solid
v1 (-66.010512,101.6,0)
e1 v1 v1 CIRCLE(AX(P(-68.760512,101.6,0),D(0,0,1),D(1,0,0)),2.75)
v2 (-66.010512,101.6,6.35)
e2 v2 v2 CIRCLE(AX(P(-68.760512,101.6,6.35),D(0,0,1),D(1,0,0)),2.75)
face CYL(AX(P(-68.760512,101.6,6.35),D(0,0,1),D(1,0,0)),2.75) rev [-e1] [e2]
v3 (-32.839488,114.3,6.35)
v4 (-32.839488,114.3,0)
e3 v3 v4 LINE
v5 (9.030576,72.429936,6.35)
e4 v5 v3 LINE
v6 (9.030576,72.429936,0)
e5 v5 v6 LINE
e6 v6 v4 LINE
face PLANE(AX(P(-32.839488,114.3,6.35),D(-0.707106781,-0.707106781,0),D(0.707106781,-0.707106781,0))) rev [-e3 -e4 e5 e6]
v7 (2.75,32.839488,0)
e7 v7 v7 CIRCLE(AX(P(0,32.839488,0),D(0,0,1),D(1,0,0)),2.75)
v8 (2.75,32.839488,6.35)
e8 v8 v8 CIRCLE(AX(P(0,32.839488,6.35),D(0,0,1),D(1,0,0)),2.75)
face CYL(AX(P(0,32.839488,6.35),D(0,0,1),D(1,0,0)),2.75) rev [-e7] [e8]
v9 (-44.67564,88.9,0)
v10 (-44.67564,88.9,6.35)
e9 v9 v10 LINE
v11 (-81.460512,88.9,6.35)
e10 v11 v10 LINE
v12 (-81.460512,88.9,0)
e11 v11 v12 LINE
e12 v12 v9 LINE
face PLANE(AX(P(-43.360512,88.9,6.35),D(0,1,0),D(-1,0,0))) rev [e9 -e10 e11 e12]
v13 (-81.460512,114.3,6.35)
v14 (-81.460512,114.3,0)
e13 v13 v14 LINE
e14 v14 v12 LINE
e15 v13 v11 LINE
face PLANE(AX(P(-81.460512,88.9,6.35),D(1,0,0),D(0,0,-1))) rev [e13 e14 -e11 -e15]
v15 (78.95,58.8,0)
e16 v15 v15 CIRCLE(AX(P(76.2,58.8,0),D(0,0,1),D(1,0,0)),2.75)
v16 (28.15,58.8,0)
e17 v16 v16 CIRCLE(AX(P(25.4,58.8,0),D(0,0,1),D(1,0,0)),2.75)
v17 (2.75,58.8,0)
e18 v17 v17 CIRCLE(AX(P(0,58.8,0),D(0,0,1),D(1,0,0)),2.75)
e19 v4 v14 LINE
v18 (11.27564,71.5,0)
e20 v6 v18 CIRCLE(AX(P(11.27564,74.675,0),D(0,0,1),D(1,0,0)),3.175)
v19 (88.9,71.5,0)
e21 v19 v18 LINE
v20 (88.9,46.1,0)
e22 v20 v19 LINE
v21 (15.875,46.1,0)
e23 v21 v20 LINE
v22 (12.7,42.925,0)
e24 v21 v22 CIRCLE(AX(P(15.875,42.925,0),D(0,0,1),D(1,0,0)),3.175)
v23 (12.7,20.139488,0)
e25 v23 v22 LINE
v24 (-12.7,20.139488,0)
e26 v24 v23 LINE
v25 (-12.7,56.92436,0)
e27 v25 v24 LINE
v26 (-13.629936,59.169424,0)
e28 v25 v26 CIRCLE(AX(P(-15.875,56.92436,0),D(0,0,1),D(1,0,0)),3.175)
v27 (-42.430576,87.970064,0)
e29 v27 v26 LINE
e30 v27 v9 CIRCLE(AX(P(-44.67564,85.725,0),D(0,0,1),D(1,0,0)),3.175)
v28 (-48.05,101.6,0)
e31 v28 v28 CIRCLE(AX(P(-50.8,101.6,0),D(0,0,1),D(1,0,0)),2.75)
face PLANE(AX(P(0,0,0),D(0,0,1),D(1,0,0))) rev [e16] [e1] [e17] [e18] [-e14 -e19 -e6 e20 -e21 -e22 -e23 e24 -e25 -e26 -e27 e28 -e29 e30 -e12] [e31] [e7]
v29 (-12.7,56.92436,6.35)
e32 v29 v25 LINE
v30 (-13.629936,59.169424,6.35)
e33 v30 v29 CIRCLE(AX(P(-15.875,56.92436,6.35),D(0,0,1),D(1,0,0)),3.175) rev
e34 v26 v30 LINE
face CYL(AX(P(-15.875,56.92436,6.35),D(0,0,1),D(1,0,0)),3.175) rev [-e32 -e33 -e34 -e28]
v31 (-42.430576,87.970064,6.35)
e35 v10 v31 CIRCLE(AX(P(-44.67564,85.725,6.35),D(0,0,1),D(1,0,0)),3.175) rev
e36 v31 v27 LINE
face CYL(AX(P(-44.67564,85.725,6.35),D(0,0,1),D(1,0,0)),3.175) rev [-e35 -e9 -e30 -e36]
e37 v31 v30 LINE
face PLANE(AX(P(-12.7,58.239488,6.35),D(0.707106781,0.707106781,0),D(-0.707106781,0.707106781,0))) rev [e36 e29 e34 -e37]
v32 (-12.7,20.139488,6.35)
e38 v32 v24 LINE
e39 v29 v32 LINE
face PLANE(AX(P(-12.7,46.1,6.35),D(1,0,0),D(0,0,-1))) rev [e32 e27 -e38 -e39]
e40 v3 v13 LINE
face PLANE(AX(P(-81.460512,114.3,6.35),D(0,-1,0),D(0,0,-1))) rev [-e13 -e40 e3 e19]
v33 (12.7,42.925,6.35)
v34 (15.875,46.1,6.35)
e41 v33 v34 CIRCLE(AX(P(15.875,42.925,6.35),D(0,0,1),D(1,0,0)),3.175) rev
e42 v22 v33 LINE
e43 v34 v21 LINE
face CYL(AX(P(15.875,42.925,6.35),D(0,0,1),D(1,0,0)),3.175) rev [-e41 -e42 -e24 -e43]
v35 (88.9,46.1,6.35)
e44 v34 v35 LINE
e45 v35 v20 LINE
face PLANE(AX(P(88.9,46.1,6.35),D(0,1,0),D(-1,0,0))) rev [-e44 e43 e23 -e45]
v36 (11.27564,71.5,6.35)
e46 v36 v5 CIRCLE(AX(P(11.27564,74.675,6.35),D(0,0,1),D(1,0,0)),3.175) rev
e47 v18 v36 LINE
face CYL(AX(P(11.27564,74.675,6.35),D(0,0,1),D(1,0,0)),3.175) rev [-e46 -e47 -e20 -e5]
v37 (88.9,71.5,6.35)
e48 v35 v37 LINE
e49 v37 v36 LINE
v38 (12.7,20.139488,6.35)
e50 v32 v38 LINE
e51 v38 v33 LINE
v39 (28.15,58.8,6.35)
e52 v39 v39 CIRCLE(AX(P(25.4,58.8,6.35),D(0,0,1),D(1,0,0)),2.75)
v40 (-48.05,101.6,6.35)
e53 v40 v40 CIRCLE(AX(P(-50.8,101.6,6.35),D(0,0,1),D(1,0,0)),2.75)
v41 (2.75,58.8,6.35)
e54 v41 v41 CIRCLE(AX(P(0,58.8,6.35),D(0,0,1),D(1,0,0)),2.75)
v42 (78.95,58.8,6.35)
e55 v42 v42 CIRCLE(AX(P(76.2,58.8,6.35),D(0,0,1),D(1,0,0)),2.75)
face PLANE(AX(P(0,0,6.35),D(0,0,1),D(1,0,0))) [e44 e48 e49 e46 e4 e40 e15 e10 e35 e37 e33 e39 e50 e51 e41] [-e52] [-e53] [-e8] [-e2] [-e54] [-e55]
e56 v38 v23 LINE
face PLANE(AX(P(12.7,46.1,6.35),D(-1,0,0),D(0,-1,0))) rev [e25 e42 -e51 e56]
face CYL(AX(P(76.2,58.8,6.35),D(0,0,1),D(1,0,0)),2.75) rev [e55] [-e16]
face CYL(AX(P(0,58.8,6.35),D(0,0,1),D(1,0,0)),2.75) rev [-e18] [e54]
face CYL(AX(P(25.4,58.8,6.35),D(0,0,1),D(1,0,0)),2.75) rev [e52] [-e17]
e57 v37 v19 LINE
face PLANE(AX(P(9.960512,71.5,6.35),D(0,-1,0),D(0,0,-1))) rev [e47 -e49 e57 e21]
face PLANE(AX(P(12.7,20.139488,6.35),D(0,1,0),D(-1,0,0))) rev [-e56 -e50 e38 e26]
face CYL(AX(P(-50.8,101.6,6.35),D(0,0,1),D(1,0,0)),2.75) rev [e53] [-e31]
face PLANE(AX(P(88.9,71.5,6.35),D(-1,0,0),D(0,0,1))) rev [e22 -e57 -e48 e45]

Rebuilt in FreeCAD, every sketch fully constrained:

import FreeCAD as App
import Part
import Sketcher

V = App.Vector
Q = App.Units.Quantity


def edges_at(feature, points):
    """Names of the edges that pass closest to the given points."""
    edges = feature.Shape.Edges
    near = lambda p: min(range(len(edges)), key=lambda i: edges[i].distToShape(Part.Vertex(*p))[0])
    return sorted({f"Edge{near(p) + 1}" for p in points})

doc = App.newDocument("Part")
body = doc.addObject("PartDesign::Body", "Body")

sketch1 = body.newObject("Sketcher::SketchObject", "Sketch")
sketch1.AttachmentSupport = (doc.getObject("XY_Plane"), [""])
sketch1.MapMode = "FlatFace"
sketch1.addGeometry([
    Part.LineSegment(V(-13, 58, 0), V(-13, 20, 0)),
    Part.LineSegment(V(-13, 20, 0), V(13, 20, 0)),
    Part.LineSegment(V(13, 20, 0), V(13, 46, 0)),
    Part.LineSegment(V(13, 46, 0), V(89, 46, 0)),
    Part.LineSegment(V(89, 46, 0), V(89, 72, 0)),
    Part.LineSegment(V(89, 72, 0), V(10, 72, 0)),
    Part.LineSegment(V(10, 72, 0), V(-33, 114, 0)),
    Part.LineSegment(V(-33, 114, 0), V(-81, 114, 0)),
    Part.LineSegment(V(-81, 114, 0), V(-81, 89, 0)),
    Part.LineSegment(V(-81, 89, 0), V(-43, 89, 0)),
    Part.LineSegment(V(-43, 89, 0), V(-13, 58, 0)),
], False)
sketch1.addConstraint([
    Sketcher.Constraint("Coincident", 0, 2, 1, 1),
    Sketcher.Constraint("Coincident", 1, 2, 2, 1),
    Sketcher.Constraint("Coincident", 2, 2, 3, 1),
    Sketcher.Constraint("Coincident", 3, 2, 4, 1),
    Sketcher.Constraint("Coincident", 4, 2, 5, 1),
    Sketcher.Constraint("Coincident", 5, 2, 6, 1),
    Sketcher.Constraint("Coincident", 6, 2, 7, 1),
    Sketcher.Constraint("Coincident", 7, 2, 8, 1),
    Sketcher.Constraint("Coincident", 8, 2, 9, 1),
    Sketcher.Constraint("Coincident", 9, 2, 10, 1),
    Sketcher.Constraint("Coincident", 10, 2, 0, 1),
    Sketcher.Constraint("Vertical", 0),
    Sketcher.Constraint("Horizontal", 1),
    Sketcher.Constraint("Vertical", 2),
    Sketcher.Constraint("Horizontal", 3),
    Sketcher.Constraint("Vertical", 4),
    Sketcher.Constraint("Horizontal", 5),
    Sketcher.Constraint("Horizontal", 7),
    Sketcher.Constraint("Vertical", 8),
    Sketcher.Constraint("Horizontal", 9),
    Sketcher.Constraint("Parallel", 6, 10),
    Sketcher.Constraint("Equal", 9, 0),
    Sketcher.Constraint("Equal", 1, 4),
    Sketcher.Constraint("Equal", 4, 8),
    Sketcher.Constraint("DistanceX", 1, 1, 1, 2, Q("1 in")),
    Sketcher.Constraint("DistanceX", 3, 1, 3, 2, Q("3 in")),
    Sketcher.Constraint("DistanceX", 9, 1, 9, 2, Q("1.5 in")),
    Sketcher.Constraint("Angle", 6, Q("135 deg")),
    Sketcher.Constraint("DistanceX", 0, 2, -1, 1, Q("0.5 in")),
    Sketcher.Constraint("DistanceY", -1, 1, 6, 2, Q("4.5 in")),
    Sketcher.Constraint("DistanceY", -1, 1, 2, 2, Q("46.1 mm")),
    Sketcher.Constraint("DistanceX", 5, 2, 5, 1, Q("78.939488 mm")),
    Sketcher.Constraint("DistanceX", 7, 2, 7, 1, Q("48.621024 mm")),
])
pad1 = body.newObject("PartDesign::Pad", "Pad")
pad1.Profile = sketch1
pad1.Length = Q("0.25 in")
doc.recompute()

fillet = body.newObject("PartDesign::Fillet", "Fillet")
fillet.Base = (pad1, edges_at(pad1, [
    (-12.7, 58.239, 3.175),
    (-43.361, 88.9, 3.175),
    (9.961, 71.5, 3.175),
    (12.7, 46.1, 3.175),
]))
fillet.Radius = Q("0.125 in")

sketch2 = body.newObject("Sketcher::SketchObject", "Sketch001")
sketch2.AttachmentSupport = (doc.getObject("XY_Plane"), [""])
sketch2.MapMode = "FlatFace"
sketch2.AttachmentOffset = App.Placement(V(0, 0, 0.25 * 25.4), App.Rotation())
sketch2.addGeometry([
    Part.Circle(V(0, 58.8, 0), V(0, 0, 1), 2.8),
    Part.Circle(V(25.4, 58.8, 0), V(0, 0, 1), 2.8),
    Part.Circle(V(76.2, 58.8, 0), V(0, 0, 1), 2.8),
    Part.Circle(V(-50.8, 101.6, 0), V(0, 0, 1), 2.8),
    Part.Circle(V(-68.8, 101.6, 0), V(0, 0, 1), 2.8),
    Part.Circle(V(0, 32.8, 0), V(0, 0, 1), 2.8),
], False)
sketch2.addConstraint([
    Sketcher.Constraint("Equal", 0, 1),
    Sketcher.Constraint("Equal", 1, 2),
    Sketcher.Constraint("Equal", 2, 3),
    Sketcher.Constraint("Equal", 3, 4),
    Sketcher.Constraint("Equal", 4, 5),
    Sketcher.Constraint("PointOnObject", 0, 3, -2),
    Sketcher.Constraint("PointOnObject", 5, 3, -2),
    Sketcher.Constraint("Horizontal", 0, 3, 1, 3),
    Sketcher.Constraint("Horizontal", 1, 3, 2, 3),
    Sketcher.Constraint("Horizontal", 3, 3, 4, 3),
    Sketcher.Constraint("DistanceX", -1, 1, 1, 3, Q("1 in")),
    Sketcher.Constraint("DistanceX", -1, 1, 2, 3, Q("3 in")),
    Sketcher.Constraint("DistanceX", 3, 3, -1, 1, Q("2 in")),
    Sketcher.Constraint("DistanceY", -1, 1, 3, 3, Q("4 in")),
    Sketcher.Constraint("Diameter", 0, Q("5.5 mm")),
    Sketcher.Constraint("DistanceY", -1, 1, 0, 3, Q("58.8 mm")),
    Sketcher.Constraint("DistanceX", 4, 3, -1, 1, Q("68.760512 mm")),
    Sketcher.Constraint("DistanceY", -1, 1, 5, 3, Q("32.839488 mm")),
])
doc.recompute()
hole = body.newObject("PartDesign::Hole", "Hole")
hole.Profile = sketch2
hole.ThreadType = "None"
hole.Diameter = 5.5
hole.DepthType = "Dimension"
hole.Depth = 18.75
hole.DrillPoint = "Angled"
hole.DrillPointAngle = 118

doc.recompute()
